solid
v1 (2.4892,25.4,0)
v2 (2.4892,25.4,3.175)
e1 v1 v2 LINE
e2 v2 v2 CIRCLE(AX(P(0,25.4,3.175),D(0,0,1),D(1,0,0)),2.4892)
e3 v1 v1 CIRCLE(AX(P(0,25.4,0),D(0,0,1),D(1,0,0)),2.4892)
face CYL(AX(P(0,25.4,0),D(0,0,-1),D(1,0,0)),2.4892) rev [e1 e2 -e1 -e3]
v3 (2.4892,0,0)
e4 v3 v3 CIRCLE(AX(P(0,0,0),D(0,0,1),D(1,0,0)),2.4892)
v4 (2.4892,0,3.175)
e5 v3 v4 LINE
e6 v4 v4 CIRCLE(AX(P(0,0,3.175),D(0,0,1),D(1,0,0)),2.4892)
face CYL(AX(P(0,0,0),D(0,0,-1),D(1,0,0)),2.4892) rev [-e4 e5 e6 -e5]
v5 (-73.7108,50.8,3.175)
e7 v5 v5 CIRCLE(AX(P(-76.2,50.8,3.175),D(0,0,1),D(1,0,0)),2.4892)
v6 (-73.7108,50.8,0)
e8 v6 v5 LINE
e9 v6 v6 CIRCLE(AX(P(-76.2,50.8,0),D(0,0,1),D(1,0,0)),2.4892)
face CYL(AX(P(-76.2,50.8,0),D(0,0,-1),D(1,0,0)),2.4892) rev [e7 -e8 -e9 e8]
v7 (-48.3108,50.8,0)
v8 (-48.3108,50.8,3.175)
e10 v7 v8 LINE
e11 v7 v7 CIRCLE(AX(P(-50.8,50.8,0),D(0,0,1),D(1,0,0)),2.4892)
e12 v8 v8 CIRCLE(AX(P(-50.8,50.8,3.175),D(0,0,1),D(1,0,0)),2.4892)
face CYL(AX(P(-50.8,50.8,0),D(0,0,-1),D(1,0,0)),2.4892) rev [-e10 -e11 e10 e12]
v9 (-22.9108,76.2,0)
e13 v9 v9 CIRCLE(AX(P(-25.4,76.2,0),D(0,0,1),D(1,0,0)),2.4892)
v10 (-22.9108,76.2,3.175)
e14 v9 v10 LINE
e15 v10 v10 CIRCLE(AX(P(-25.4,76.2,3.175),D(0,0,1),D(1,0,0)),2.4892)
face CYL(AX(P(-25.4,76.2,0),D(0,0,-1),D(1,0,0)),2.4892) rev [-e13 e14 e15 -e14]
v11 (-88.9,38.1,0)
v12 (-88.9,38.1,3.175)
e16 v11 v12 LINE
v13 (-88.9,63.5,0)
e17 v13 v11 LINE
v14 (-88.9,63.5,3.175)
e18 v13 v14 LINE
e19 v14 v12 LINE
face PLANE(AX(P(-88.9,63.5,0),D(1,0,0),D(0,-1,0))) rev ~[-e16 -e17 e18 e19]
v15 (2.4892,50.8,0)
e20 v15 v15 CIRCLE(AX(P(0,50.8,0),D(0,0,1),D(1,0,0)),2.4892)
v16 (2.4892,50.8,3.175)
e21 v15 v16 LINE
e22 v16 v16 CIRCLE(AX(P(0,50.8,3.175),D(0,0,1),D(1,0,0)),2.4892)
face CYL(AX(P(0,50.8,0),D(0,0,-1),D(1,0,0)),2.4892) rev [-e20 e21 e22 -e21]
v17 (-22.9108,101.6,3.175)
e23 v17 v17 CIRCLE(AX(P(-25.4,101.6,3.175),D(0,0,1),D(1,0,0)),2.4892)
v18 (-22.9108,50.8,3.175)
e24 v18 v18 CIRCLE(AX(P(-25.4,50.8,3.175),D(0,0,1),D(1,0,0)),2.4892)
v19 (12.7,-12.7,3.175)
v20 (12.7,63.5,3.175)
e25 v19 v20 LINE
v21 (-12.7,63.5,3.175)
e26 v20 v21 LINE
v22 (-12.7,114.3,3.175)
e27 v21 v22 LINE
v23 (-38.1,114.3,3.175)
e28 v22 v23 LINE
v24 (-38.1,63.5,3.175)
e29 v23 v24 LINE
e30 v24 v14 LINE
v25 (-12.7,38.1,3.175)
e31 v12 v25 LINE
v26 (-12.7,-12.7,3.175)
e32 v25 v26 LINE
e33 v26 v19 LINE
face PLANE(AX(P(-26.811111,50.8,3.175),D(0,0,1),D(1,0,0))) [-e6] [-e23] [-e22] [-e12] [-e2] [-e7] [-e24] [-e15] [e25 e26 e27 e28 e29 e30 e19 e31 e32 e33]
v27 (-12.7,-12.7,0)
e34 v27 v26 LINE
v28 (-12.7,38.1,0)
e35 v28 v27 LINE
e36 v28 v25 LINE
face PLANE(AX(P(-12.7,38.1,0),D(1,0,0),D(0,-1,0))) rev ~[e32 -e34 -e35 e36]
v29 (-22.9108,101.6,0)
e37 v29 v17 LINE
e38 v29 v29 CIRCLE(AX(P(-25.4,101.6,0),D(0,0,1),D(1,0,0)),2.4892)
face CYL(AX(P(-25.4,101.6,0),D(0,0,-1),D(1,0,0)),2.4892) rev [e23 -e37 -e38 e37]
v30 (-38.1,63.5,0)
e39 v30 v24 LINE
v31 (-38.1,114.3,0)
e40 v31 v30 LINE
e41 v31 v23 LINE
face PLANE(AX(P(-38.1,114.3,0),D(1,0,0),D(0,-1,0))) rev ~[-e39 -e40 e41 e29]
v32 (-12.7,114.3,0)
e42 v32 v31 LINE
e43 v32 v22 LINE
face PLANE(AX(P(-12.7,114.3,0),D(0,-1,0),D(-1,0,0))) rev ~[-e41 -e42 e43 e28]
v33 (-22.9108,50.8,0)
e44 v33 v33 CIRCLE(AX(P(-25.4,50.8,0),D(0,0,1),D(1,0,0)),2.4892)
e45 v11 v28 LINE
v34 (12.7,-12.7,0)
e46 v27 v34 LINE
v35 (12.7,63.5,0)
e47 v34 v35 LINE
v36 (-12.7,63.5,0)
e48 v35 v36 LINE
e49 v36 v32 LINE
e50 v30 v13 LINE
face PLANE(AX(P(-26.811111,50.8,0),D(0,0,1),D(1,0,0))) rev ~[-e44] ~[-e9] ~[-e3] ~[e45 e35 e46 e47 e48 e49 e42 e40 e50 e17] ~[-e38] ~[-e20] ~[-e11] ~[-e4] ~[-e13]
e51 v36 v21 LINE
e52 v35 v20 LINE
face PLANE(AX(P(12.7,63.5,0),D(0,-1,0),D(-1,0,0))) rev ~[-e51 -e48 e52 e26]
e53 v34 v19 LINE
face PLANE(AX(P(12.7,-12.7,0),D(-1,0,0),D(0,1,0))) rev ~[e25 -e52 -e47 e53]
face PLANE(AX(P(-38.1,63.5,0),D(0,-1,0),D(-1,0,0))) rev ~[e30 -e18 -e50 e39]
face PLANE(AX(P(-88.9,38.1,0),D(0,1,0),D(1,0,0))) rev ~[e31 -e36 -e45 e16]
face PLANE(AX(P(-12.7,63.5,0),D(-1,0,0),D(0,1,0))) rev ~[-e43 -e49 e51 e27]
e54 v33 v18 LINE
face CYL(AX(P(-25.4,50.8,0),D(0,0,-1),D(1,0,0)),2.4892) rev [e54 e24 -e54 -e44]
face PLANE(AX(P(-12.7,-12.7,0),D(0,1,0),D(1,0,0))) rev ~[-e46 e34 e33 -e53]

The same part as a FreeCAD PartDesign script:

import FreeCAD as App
import Part
import Sketcher

V = App.Vector
Q = App.Units.Quantity

doc = App.newDocument("Part")
body = doc.addObject("PartDesign::Body", "Body")

# Sketch on XY plane
sketch1 = doc.addObject("Sketcher::SketchObject", "Sketch")
body.addObject(sketch1)
sketch1.AttachmentSupport = (doc.XY_Plane, [""])
sketch1.MapMode = "FlatFace"
sketch1.addGeometry(Part.LineSegment(V(-88.9, 63.5, 0), V(-88.9, 38.1, 0)), False)
sketch1.addGeometry(Part.LineSegment(V(-88.9, 38.1, 0), V(-12.7, 38.1, 0)), False)
sketch1.addGeometry(Part.LineSegment(V(-12.7, 38.1, 0), V(-12.7, -12.7, 0)), False)
sketch1.addGeometry(Part.LineSegment(V(-12.7, -12.7, 0), V(12.7, -12.7, 0)), False)
sketch1.addGeometry(Part.LineSegment(V(12.7, -12.7, 0), V(12.7, 63.5, 0)), False)
sketch1.addGeometry(Part.LineSegment(V(12.7, 63.5, 0), V(-12.7, 63.5, 0)), False)
sketch1.addGeometry(Part.LineSegment(V(-12.7, 63.5, 0), V(-12.7, 114.3, 0)), False)
sketch1.addGeometry(Part.LineSegment(V(-12.7, 114.3, 0), V(-38.1, 114.3, 0)), False)
sketch1.addGeometry(Part.LineSegment(V(-38.1, 114.3, 0), V(-38.1, 63.5, 0)), False)
sketch1.addGeometry(Part.LineSegment(V(-38.1, 63.5, 0), V(-88.9, 63.5, 0)), False)
sketch1.addGeometry(Part.Circle(V(0, 0, 0), V(0, 0, 1), 2.4892), False)
sketch1.addGeometry(Part.Circle(V(0, 25.4, 0), V(0, 0, 1), 2.4892), False)
sketch1.addGeometry(Part.Circle(V(-76.2, 50.8, 0), V(0, 0, 1), 2.4892), False)
sketch1.addGeometry(Part.Circle(V(-50.8, 50.8, 0), V(0, 0, 1), 2.4892), False)
sketch1.addGeometry(Part.Circle(V(-25.4, 50.8, 0), V(0, 0, 1), 2.4892), False)
sketch1.addGeometry(Part.Circle(V(-25.4, 76.2, 0), V(0, 0, 1), 2.4892), False)
sketch1.addGeometry(Part.Circle(V(0, 50.8, 0), V(0, 0, 1), 2.4892), False)
sketch1.addGeometry(Part.Circle(V(-25.4, 101.6, 0), V(0, 0, 1), 2.4892), False)
sketch1.addConstraint(Sketcher.Constraint("Coincident", 0, 2, 1, 1))
sketch1.addConstraint(Sketcher.Constraint("Coincident", 1, 2, 2, 1))
sketch1.addConstraint(Sketcher.Constraint("Coincident", 2, 2, 3, 1))
sketch1.addConstraint(Sketcher.Constraint("Coincident", 3, 2, 4, 1))
sketch1.addConstraint(Sketcher.Constraint("Coincident", 4, 2, 5, 1))
sketch1.addConstraint(Sketcher.Constraint("Coincident", 5, 2, 6, 1))
sketch1.addConstraint(Sketcher.Constraint("Coincident", 6, 2, 7, 1))
sketch1.addConstraint(Sketcher.Constraint("Coincident", 7, 2, 8, 1))
sketch1.addConstraint(Sketcher.Constraint("Coincident", 8, 2, 9, 1))
sketch1.addConstraint(Sketcher.Constraint("Coincident", 9, 2, 0, 1))
sketch1.addConstraint(Sketcher.Constraint("Vertical", 0))
sketch1.addConstraint(Sketcher.Constraint("Horizontal", 1))
sketch1.addConstraint(Sketcher.Constraint("Vertical", 2))
sketch1.addConstraint(Sketcher.Constraint("Horizontal", 3))
sketch1.addConstraint(Sketcher.Constraint("Vertical", 4))
sketch1.addConstraint(Sketcher.Constraint("Horizontal", 5))
sketch1.addConstraint(Sketcher.Constraint("Vertical", 6))
sketch1.addConstraint(Sketcher.Constraint("Horizontal", 7))
sketch1.addConstraint(Sketcher.Constraint("Vertical", 8))
sketch1.addConstraint(Sketcher.Constraint("Horizontal", 9))
sketch1.addConstraint(Sketcher.Constraint("Coincident", 10, 3, -1, 1))
sketch1.addConstraint(Sketcher.Constraint("Equal", 10, 11))
sketch1.addConstraint(Sketcher.Constraint("Equal", 11, 12))
sketch1.addConstraint(Sketcher.Constraint("Equal", 12, 13))
sketch1.addConstraint(Sketcher.Constraint("Equal", 13, 14))
sketch1.addConstraint(Sketcher.Constraint("Equal", 14, 15))
sketch1.addConstraint(Sketcher.Constraint("Equal", 15, 16))
sketch1.addConstraint(Sketcher.Constraint("Equal", 16, 17))
sketch1.addConstraint(Sketcher.Constraint("PointOnObject", 11, 3, -2))
sketch1.addConstraint(Sketcher.Constraint("PointOnObject", 16, 3, -2))
sketch1.addConstraint(Sketcher.Constraint("Horizontal", 12, 3, 13, 3))
sketch1.addConstraint(Sketcher.Constraint("Horizontal", 13, 3, 14, 3))
sketch1.addConstraint(Sketcher.Constraint("Horizontal", 14, 3, 16, 3))
sketch1.addConstraint(Sketcher.Constraint("Horizontal", 5, 2, 8, 2))
sketch1.addConstraint(Sketcher.Constraint("Vertical", 14, 3, 15, 3))
sketch1.addConstraint(Sketcher.Constraint("Vertical", 15, 3, 17, 3))
sketch1.addConstraint(Sketcher.Constraint("Vertical", 2, 2, 5, 2))
sketch1.addConstraint(Sketcher.Constraint("Equal", 5, 7))
sketch1.addConstraint(Sketcher.Constraint("Equal", 7, 0))
sketch1.addConstraint(Sketcher.Constraint("Equal", 9, 2))
sketch1.addConstraint(Sketcher.Constraint("Equal", 2, 6))
sketch1.addConstraint(Sketcher.Constraint("DistanceX", 1, 1, 1, 2, Q("3 in")))
sketch1.addConstraint(Sketcher.Constraint("DistanceX", 3, 1, 3, 2, Q("1 in")))
sketch1.addConstraint(Sketcher.Constraint("Diameter", 10, Q("0.196 in")))
sketch1.addConstraint(Sketcher.Constraint("DistanceY", -1, 1, 11, 3, Q("1 in")))
sketch1.addConstraint(Sketcher.Constraint("DistanceX", 12, 3, -1, 1, Q("3 in")))
sketch1.addConstraint(Sketcher.Constraint("DistanceY", -1, 1, 12, 3, Q("2 in")))
sketch1.addConstraint(Sketcher.Constraint("DistanceX", 13, 3, -1, 1, Q("2 in")))
sketch1.addConstraint(Sketcher.Constraint("DistanceX", 14, 3, -1, 1, Q("1 in")))
sketch1.addConstraint(Sketcher.Constraint("DistanceY", -1, 1, 15, 3, Q("3 in")))
sketch1.addConstraint(Sketcher.Constraint("DistanceY", -1, 1, 17, 3, Q("4 in")))
sketch1.addConstraint(Sketcher.Constraint("DistanceX", 0, 2, -1, 1, Q("3.5 in")))
sketch1.addConstraint(Sketcher.Constraint("DistanceY", -1, 1, 0, 2, Q("1.5 in")))
pad1 = doc.addObject("PartDesign::Pad", "Pad")
body.addObject(pad1)
pad1.Profile = sketch1
pad1.Length = Q("0.125 in")

doc.recompute()
